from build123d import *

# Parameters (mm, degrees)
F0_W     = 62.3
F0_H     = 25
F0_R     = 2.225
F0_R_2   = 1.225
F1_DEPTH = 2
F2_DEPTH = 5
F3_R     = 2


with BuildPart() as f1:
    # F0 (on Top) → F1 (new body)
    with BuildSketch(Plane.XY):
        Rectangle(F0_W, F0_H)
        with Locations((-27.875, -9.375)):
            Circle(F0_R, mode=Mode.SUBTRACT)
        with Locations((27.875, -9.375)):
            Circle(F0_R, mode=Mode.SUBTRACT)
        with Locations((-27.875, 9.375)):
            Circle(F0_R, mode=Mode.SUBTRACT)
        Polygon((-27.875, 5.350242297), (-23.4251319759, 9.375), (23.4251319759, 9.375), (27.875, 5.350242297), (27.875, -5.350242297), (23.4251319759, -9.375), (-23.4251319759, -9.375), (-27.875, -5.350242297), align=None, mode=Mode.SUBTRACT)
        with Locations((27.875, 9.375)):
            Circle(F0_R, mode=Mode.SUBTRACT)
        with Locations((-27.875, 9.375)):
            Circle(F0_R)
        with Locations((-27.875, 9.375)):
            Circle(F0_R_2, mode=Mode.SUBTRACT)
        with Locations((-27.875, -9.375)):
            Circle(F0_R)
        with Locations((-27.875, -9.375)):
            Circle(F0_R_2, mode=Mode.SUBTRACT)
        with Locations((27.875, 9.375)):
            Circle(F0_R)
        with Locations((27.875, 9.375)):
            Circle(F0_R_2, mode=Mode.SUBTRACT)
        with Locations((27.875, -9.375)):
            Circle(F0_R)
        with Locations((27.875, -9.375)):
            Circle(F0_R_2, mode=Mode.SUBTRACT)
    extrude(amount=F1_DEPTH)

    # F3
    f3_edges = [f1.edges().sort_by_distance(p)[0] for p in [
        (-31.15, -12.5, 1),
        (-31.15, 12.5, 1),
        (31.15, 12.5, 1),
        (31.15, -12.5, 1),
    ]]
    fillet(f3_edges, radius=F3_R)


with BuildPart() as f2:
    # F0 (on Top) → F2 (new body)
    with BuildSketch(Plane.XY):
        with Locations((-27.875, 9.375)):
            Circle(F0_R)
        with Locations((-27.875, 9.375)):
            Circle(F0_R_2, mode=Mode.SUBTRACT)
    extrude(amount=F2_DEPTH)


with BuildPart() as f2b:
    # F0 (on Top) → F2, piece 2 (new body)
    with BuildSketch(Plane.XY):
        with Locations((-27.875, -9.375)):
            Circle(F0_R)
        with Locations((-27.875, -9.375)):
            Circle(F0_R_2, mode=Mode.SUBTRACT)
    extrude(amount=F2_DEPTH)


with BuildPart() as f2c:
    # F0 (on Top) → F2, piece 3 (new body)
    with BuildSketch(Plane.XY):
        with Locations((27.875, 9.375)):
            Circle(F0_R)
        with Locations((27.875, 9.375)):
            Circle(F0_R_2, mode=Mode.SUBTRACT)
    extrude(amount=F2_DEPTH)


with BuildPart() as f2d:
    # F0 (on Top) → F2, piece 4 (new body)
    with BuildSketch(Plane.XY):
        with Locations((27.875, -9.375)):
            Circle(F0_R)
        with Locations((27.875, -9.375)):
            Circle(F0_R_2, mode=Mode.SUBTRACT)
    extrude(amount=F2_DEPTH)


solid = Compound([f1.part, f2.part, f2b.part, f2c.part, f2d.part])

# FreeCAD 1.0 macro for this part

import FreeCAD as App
import Part
import Sketcher

V = App.Vector


def edges_at(feature, points):
    """Names of the edges that pass closest to the given points."""
    edges = feature.Shape.Edges
    near = lambda p: min(range(len(edges)), key=lambda i: edges[i].distToShape(Part.Vertex(*p))[0])
    return sorted({f"Edge{near(p) + 1}" for p in points})

doc = App.newDocument("Part")
body = doc.addObject("PartDesign::Body", "Body")

# Sketch on XY plane
sketch1 = body.newObject("Sketcher::SketchObject", "Sketch")
sketch1.AttachmentSupport = (doc.getObject("XY_Plane"), [""])
sketch1.MapMode = "FlatFace"
sketch1.addGeometry([
    Part.LineSegment(V(-31.15, 12.5, 0), V(-31.15, -12.5, 0)),  # 0
    Part.LineSegment(V(-31.15, -12.5, 0), V(31.15, -12.5, 0)),  # 1
    Part.LineSegment(V(31.15, -12.5, 0), V(31.15, 12.5, 0)),  # 2
    Part.LineSegment(V(31.15, 12.5, 0), V(-31.15, 12.5, 0)),  # 3
    Part.Circle(V(-27.875, -9.375, 0), V(0, 0, 1), 1.225),  # 4
    Part.Circle(V(27.875, -9.375, 0), V(0, 0, 1), 1.225),  # 5
    Part.LineSegment(V(-27.875, -5.350242, 0), V(-27.875, 5.350242, 0)),  # 6
    Part.LineSegment(V(-27.875, 5.350242, 0), V(-23.425132, 9.375, 0)),  # 7
    Part.LineSegment(V(-23.425132, 9.375, 0), V(23.425132, 9.375, 0)),  # 8
    Part.LineSegment(V(23.425132, 9.375, 0), V(27.875, 5.350242, 0)),  # 9
    Part.LineSegment(V(27.875, 5.350242, 0), V(27.875, -5.350242, 0)),  # 10
    Part.LineSegment(V(27.875, -5.350242, 0), V(23.425132, -9.375, 0)),  # 11
    Part.LineSegment(V(23.425132, -9.375, 0), V(-23.425132, -9.375, 0)),  # 12
    Part.LineSegment(V(-23.425132, -9.375, 0), V(-27.875, -5.350242, 0)),  # 13
    Part.Circle(V(-27.875, 9.375, 0), V(0, 0, 1), 1.225),  # 14
    Part.Circle(V(27.875, 9.375, 0), V(0, 0, 1), 1.225),  # 15
], False)
sketch1.addConstraint([
    Sketcher.Constraint("Coincident", 0, 2, 1, 1),
    Sketcher.Constraint("Coincident", 1, 2, 2, 1),
    Sketcher.Constraint("Coincident", 2, 2, 3, 1),
    Sketcher.Constraint("Coincident", 3, 2, 0, 1),
    Sketcher.Constraint("Coincident", 6, 2, 7, 1),
    Sketcher.Constraint("Coincident", 7, 2, 8, 1),
    Sketcher.Constraint("Coincident", 8, 2, 9, 1),
    Sketcher.Constraint("Coincident", 9, 2, 10, 1),
    Sketcher.Constraint("Coincident", 10, 2, 11, 1),
    Sketcher.Constraint("Coincident", 11, 2, 12, 1),
    Sketcher.Constraint("Coincident", 12, 2, 13, 1),
    Sketcher.Constraint("Coincident", 13, 2, 6, 1),
    Sketcher.Constraint("Vertical", 0),
    Sketcher.Constraint("Horizontal", 1),
    Sketcher.Constraint("Vertical", 2),
    Sketcher.Constraint("Horizontal", 3),
    Sketcher.Constraint("Vertical", 6),
    Sketcher.Constraint("Horizontal", 8),
    Sketcher.Constraint("Vertical", 10),
    Sketcher.Constraint("Horizontal", 12),
    Sketcher.Constraint("Equal", 4, 5),
    Sketcher.Constraint("Equal", 5, 14),
    Sketcher.Constraint("Equal", 14, 15),
    Sketcher.Constraint("Symmetric", 5, 3, 14, 3, -1, 1),
    Sketcher.Constraint("Symmetric", 4, 3, 15, 3, -1, 1),
    Sketcher.Constraint("Symmetric", 0, 2, 2, 2, -1, 1),
    Sketcher.Constraint("Symmetric", 6, 2, 10, 2, -1, 1),
    Sketcher.Constraint("Symmetric", 7, 2, 11, 2, -1, 1),
    Sketcher.Constraint("Symmetric", 4, 3, 5, 3, -2),
    Sketcher.Constraint("Parallel", 9, 13),
    Sketcher.Constraint("Horizontal", 15, 3, 7, 2),
    Sketcher.Constraint("Horizontal", 6, 2, 9, 2),
    Sketcher.Constraint("Horizontal", 10, 2, 13, 2),
    Sketcher.Constraint("Vertical", 14, 3, 6, 2),
    Sketcher.Constraint("Vertical", 8, 2, 11, 2),
    Sketcher.Constraint("Diameter", 4, 2.45),
    Sketcher.Constraint("DistanceY", 0, 2, 0, 1, 25.0),
    Sketcher.Constraint("Distance", 7, 6.0),
    Sketcher.Constraint("DistanceX", 1, 1, 1, 2, 62.3),
    Sketcher.Constraint("DistanceX", 4, 3, 5, 3, 55.75),
    Sketcher.Constraint("DistanceY", 4, 3, 14, 3, 18.75),
    Sketcher.Constraint("DistanceX", 8, 1, 8, 2, 46.850264),
])
pad1 = body.newObject("PartDesign::Pad", "Pad")
pad1.Profile = sketch1
pad1.Length = 2
doc.recompute()

fillet = body.newObject("PartDesign::Fillet", "Fillet")
fillet.Base = (pad1, edges_at(pad1, [
    (-31.15, -12.5, 1),
    (-31.15, 12.5, 1),
    (31.15, 12.5, 1),
    (31.15, -12.5, 1),
]))
fillet.Radius = 2
body2 = doc.addObject("PartDesign::Body", "Body001")

# Sketch on XY plane
sketch2 = body2.newObject("Sketcher::SketchObject", "Sketch001")
sketch2.AttachmentSupport = (doc.getObject("XY_Plane001"), [""])
sketch2.MapMode = "FlatFace"
sketch2.addGeometry([
    Part.Circle(V(-27.875, 9.375, 0), V(0, 0, 1), 2.225),
    Part.Circle(V(-27.875, 9.375, 0), V(0, 0, 1), 1.225),
], False)
sketch2.addConstraint([
    Sketcher.Constraint("Coincident", 1, 3, 0, 3),
    Sketcher.Constraint("Diameter", 0, 4.45),
    Sketcher.Constraint("Diameter", 1, 2.45),
    Sketcher.Constraint("DistanceX", 0, 3, -1, 1, 27.875),
    Sketcher.Constraint("DistanceY", -1, 1, 0, 3, 9.375),
])
pad2 = body2.newObject("PartDesign::Pad", "Pad001")
pad2.Profile = sketch2
pad2.Length = 5
body3 = doc.addObject("PartDesign::Body", "Body002")

# Sketch on XY plane
sketch3 = body3.newObject("Sketcher::SketchObject", "Sketch002")
sketch3.AttachmentSupport = (doc.getObject("XY_Plane002"), [""])
sketch3.MapMode = "FlatFace"
sketch3.addGeometry([
    Part.Circle(V(-27.875, -9.375, 0), V(0, 0, 1), 2.225),
    Part.Circle(V(-27.875, -9.375, 0), V(0, 0, 1), 1.225),
], False)
sketch3.addConstraint([
    Sketcher.Constraint("Coincident", 1, 3, 0, 3),
    Sketcher.Constraint("Diameter", 0, 4.45),
    Sketcher.Constraint("Diameter", 1, 2.45),
    Sketcher.Constraint("DistanceX", 0, 3, -1, 1, 27.875),
    Sketcher.Constraint("DistanceY", 0, 3, -1, 1, 9.375),
])
pad3 = body3.newObject("PartDesign::Pad", "Pad002")
pad3.Profile = sketch3
pad3.Length = 5
body4 = doc.addObject("PartDesign::Body", "Body003")

# Sketch on XY plane
sketch4 = body4.newObject("Sketcher::SketchObject", "Sketch003")
sketch4.AttachmentSupport = (doc.getObject("XY_Plane003"), [""])
sketch4.MapMode = "FlatFace"
sketch4.addGeometry([
    Part.Circle(V(27.875, 9.375, 0), V(0, 0, 1), 2.225),
    Part.Circle(V(27.875, 9.375, 0), V(0, 0, 1), 1.225),
], False)
sketch4.addConstraint([
    Sketcher.Constraint("Coincident", 1, 3, 0, 3),
    Sketcher.Constraint("Diameter", 0, 4.45),
    Sketcher.Constraint("Diameter", 1, 2.45),
    Sketcher.Constraint("DistanceX", -1, 1, 0, 3, 27.875),
    Sketcher.Constraint("DistanceY", -1, 1, 0, 3, 9.375),
])
pad4 = body4.newObject("PartDesign::Pad", "Pad003")
pad4.Profile = sketch4
pad4.Length = 5
body5 = doc.addObject("PartDesign::Body", "Body004")

# Sketch on XY plane
sketch5 = body5.newObject("Sketcher::SketchObject", "Sketch004")
sketch5.AttachmentSupport = (doc.getObject("XY_Plane004"), [""])
sketch5.MapMode = "FlatFace"
sketch5.addGeometry([
    Part.Circle(V(27.875, -9.375, 0), V(0, 0, 1), 2.225),
    Part.Circle(V(27.875, -9.375, 0), V(0, 0, 1), 1.225),
], False)
sketch5.addConstraint([
    Sketcher.Constraint("Coincident", 1, 3, 0, 3),
    Sketcher.Constraint("Diameter", 0, 4.45),
    Sketcher.Constraint("Diameter", 1, 2.45),
    Sketcher.Constraint("DistanceX", -1, 1, 0, 3, 27.875),
    Sketcher.Constraint("DistanceY", 0, 3, -1, 1, 9.375),
])
pad5 = body5.newObject("PartDesign::Pad", "Pad004")
pad5.Profile = sketch5
pad5.Length = 5

doc.recompute()
